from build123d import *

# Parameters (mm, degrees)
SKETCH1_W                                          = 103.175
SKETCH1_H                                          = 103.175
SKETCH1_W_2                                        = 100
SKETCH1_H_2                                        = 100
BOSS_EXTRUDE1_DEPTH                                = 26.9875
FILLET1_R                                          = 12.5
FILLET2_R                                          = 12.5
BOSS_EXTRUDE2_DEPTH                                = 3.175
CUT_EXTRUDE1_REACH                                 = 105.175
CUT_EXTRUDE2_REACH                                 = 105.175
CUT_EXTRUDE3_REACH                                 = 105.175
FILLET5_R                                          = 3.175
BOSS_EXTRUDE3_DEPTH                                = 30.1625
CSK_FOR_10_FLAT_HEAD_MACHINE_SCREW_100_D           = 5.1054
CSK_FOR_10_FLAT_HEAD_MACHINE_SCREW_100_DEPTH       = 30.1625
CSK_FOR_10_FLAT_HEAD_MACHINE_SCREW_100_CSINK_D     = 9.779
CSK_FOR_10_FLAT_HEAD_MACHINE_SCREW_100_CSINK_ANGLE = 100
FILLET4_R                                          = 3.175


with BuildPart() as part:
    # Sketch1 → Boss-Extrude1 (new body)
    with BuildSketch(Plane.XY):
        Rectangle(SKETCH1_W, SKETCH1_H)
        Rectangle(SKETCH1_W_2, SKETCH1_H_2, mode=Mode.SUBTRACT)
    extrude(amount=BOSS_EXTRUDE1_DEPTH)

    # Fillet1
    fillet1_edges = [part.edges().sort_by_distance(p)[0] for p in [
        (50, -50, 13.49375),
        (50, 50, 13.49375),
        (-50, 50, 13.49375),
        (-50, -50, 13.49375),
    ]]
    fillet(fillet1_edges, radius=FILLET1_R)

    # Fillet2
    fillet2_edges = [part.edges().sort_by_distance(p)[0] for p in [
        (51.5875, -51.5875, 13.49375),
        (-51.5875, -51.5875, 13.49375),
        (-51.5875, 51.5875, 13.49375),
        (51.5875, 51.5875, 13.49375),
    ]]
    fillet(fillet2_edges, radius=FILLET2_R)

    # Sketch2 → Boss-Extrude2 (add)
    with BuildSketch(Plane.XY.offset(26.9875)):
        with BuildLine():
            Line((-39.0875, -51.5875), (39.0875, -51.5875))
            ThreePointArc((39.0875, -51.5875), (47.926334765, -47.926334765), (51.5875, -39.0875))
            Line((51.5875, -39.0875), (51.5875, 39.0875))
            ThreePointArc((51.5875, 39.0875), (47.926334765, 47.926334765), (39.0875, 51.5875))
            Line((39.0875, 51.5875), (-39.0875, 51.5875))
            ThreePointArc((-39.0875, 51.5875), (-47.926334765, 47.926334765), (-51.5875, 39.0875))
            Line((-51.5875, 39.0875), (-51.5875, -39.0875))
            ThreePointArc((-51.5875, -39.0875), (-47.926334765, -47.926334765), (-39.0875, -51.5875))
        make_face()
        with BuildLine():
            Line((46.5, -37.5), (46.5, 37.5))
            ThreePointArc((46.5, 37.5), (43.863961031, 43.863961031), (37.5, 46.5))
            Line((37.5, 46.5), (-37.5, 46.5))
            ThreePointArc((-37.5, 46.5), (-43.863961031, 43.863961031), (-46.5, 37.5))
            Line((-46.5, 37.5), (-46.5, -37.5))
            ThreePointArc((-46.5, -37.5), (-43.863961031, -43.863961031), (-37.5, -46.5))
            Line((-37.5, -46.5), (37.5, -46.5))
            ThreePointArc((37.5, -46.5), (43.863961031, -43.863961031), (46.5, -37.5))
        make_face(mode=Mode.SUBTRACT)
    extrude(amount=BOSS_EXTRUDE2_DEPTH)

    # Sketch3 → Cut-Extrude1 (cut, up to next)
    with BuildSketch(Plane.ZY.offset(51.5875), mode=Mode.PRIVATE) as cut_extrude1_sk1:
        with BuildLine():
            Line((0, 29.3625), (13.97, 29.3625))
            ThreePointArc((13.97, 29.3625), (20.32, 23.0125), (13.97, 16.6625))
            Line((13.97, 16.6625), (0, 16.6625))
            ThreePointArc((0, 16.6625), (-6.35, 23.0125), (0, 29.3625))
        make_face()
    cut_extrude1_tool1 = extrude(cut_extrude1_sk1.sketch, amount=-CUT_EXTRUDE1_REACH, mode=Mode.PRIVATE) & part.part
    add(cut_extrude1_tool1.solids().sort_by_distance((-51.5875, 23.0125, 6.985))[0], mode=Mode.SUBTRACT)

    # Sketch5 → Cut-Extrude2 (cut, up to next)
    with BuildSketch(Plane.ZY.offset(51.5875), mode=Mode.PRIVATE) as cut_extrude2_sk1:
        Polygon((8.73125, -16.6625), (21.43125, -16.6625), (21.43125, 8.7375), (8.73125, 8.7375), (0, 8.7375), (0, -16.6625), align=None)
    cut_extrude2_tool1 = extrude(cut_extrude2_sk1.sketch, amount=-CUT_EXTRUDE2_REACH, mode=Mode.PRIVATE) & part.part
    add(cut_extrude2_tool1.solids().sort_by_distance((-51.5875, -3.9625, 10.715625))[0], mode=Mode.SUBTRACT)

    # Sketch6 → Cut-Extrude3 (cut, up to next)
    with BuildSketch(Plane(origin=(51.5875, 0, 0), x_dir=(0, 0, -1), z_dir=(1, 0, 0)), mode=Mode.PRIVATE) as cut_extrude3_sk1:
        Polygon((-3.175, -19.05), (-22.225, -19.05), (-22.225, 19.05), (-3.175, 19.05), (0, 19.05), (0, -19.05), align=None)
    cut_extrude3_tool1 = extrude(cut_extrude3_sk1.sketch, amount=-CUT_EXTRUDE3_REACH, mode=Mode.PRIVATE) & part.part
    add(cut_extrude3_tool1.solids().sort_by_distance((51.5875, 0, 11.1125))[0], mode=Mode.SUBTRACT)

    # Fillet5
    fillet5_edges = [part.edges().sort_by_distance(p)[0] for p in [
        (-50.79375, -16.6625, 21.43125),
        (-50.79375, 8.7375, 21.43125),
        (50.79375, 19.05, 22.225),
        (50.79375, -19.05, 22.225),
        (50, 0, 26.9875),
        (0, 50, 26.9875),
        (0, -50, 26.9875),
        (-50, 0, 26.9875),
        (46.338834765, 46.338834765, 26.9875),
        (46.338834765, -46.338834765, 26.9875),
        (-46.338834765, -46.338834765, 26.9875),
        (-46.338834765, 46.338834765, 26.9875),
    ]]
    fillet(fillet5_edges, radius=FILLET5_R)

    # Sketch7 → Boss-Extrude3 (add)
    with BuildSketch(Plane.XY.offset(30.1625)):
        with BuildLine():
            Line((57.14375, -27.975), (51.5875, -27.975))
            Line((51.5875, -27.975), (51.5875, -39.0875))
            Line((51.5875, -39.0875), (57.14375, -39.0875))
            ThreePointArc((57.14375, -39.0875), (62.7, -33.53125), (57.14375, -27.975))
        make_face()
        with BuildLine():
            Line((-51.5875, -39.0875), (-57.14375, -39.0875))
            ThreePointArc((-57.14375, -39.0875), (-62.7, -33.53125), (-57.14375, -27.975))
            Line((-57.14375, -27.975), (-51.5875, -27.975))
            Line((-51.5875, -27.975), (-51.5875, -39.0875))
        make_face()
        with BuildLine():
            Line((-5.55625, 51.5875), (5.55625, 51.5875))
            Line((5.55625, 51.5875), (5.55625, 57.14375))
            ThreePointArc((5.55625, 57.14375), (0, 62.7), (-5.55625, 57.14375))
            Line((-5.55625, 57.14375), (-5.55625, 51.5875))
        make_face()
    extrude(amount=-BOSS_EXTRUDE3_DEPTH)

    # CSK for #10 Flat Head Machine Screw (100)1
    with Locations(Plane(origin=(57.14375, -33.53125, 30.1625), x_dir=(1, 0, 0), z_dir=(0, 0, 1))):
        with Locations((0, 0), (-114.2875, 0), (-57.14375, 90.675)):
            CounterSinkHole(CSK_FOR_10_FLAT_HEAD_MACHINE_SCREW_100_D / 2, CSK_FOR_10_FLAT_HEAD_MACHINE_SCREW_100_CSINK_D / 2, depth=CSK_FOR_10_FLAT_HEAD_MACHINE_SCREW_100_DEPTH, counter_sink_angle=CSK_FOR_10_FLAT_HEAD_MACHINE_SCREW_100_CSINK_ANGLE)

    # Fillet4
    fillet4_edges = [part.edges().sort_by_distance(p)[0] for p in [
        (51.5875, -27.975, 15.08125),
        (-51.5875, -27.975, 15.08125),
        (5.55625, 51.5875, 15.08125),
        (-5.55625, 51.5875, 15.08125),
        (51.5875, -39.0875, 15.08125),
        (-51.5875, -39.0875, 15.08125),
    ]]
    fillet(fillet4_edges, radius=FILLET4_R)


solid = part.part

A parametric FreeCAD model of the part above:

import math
import FreeCAD as App
import Part
import Sketcher
from FreeCAD import Vector
Q = App.Units.Quantity


def edges_at(feature, points):
    """Names of the edges that pass closest to the given points."""
    edges = feature.Shape.Edges
    near = lambda p: min(range(len(edges)), key=lambda i: edges[i].distToShape(Part.Vertex(*p))[0])
    return sorted({f"Edge{near(p) + 1}" for p in points})

doc = App.newDocument("Part")
body = doc.addObject("PartDesign::Body", "Body")

sketch1 = body.newObject("Sketcher::SketchObject", "Sketch")
sketch1.AttachmentSupport = (doc.getObject("XY_Plane"), [""])
sketch1.MapMode = "FlatFace"
sketch1.addGeometry([
    Part.LineSegment(Vector(-51.5875, 51.5875, 0), Vector(-51.5875, -51.5875, 0)),
    Part.LineSegment(Vector(-51.5875, -51.5875, 0), Vector(51.5875, -51.5875, 0)),
    Part.LineSegment(Vector(51.5875, -51.5875, 0), Vector(51.5875, 51.5875, 0)),
    Part.LineSegment(Vector(51.5875, 51.5875, 0), Vector(-51.5875, 51.5875, 0)),
    Part.LineSegment(Vector(50, -50, 0), Vector(-50, -50, 0)),
    Part.LineSegment(Vector(-50, -50, 0), Vector(-50, 50, 0)),
    Part.LineSegment(Vector(-50, 50, 0), Vector(50, 50, 0)),
    Part.LineSegment(Vector(50, 50, 0), Vector(50, -50, 0)),
], False)
sketch1.addConstraint([
    Sketcher.Constraint("Coincident", 0, 2, 1, 1),
    Sketcher.Constraint("Coincident", 1, 2, 2, 1),
    Sketcher.Constraint("Coincident", 2, 2, 3, 1),
    Sketcher.Constraint("Coincident", 3, 2, 0, 1),
    Sketcher.Constraint("Coincident", 4, 2, 5, 1),
    Sketcher.Constraint("Coincident", 5, 2, 6, 1),
    Sketcher.Constraint("Coincident", 6, 2, 7, 1),
    Sketcher.Constraint("Coincident", 7, 2, 4, 1),
    Sketcher.Constraint("Vertical", 0),
    Sketcher.Constraint("Horizontal", 1),
    Sketcher.Constraint("Vertical", 2),
    Sketcher.Constraint("Horizontal", 3),
    Sketcher.Constraint("Horizontal", 4),
    Sketcher.Constraint("Vertical", 5),
    Sketcher.Constraint("Horizontal", 6),
    Sketcher.Constraint("Vertical", 7),
    Sketcher.Constraint("Symmetric", 0, 2, 2, 2, -1, 1),
    Sketcher.Constraint("Symmetric", 4, 2, 6, 2, -1, 1),
    Sketcher.Constraint("Equal", 3, 0),
    Sketcher.Constraint("Equal", 6, 5),
    Sketcher.Constraint("DistanceX", 0, 2, 4, 2, Q("0.0625 in")),
    Sketcher.Constraint("DistanceX", 1, 1, 1, 2, Q("103.175 mm")),
])
pad1 = body.newObject("PartDesign::Pad", "Pad")
pad1.Profile = sketch1
pad1.Length = Q("1.0625 in")
doc.recompute()

fillet = body.newObject("PartDesign::Fillet", "Fillet")
fillet.Base = (pad1, edges_at(pad1, [
    (50, -50, 13.494),
    (50, 50, 13.494),
    (-50, 50, 13.494),
    (-50, -50, 13.494),
]))
fillet.Radius = 12.5
doc.recompute()

fillet2 = body.newObject("PartDesign::Fillet", "Fillet001")
fillet2.Base = (fillet, edges_at(fillet, [
    (51.587, -51.587, 13.494),
    (-51.587, -51.587, 13.494),
    (-51.587, 51.587, 13.494),
    (51.587, 51.587, 13.494),
]))
fillet2.Radius = 12.5

sketch2 = body.newObject("Sketcher::SketchObject", "Sketch001")
sketch2.AttachmentSupport = (doc.getObject("XY_Plane"), [""])
sketch2.MapMode = "FlatFace"
sketch2.AttachmentOffset = App.Placement(Vector(0, 0, 1.0625 * 25.4), App.Rotation())
sketch2.addGeometry([
    Part.LineSegment(Vector(-39.0875, -51.5875, 0), Vector(39.0875, -51.5875, 0)),
    Part.ArcOfCircle(Part.Circle(Vector(39.0875, -39.0875, 0), Vector(0, 0, 1), 12.5), math.radians(-90), math.radians(0)),
    Part.LineSegment(Vector(51.5875, -39.0875, 0), Vector(51.5875, 39.0875, 0)),
    Part.ArcOfCircle(Part.Circle(Vector(39.0875, 39.0875, 0), Vector(0, 0, 1), 12.5), math.radians(0), math.radians(90)),
    Part.LineSegment(Vector(39.0875, 51.5875, 0), Vector(-39.0875, 51.5875, 0)),
    Part.ArcOfCircle(Part.Circle(Vector(-39.0875, 39.0875, 0), Vector(0, 0, 1), 12.5), math.radians(90), math.radians(180)),
    Part.LineSegment(Vector(-51.5875, 39.0875, 0), Vector(-51.5875, -39.0875, 0)),
    Part.ArcOfCircle(Part.Circle(Vector(-39.0875, -39.0875, 0), Vector(0, 0, 1), 12.5), math.radians(180), math.radians(270)),
    Part.LineSegment(Vector(46.5, 37.5, 0), Vector(46.5, -37.5, 0)),
    Part.ArcOfCircle(Part.Circle(Vector(37.5, -37.5, 0), Vector(0, 0, 1), 9), math.radians(-90), math.radians(0)),
    Part.LineSegment(Vector(37.5, -46.5, 0), Vector(-37.5, -46.5, 0)),
    Part.ArcOfCircle(Part.Circle(Vector(-37.5, -37.5, 0), Vector(0, 0, 1), 9), math.radians(180), math.radians(270)),
    Part.LineSegment(Vector(-46.5, -37.5, 0), Vector(-46.5, 37.5, 0)),
    Part.ArcOfCircle(Part.Circle(Vector(-37.5, 37.5, 0), Vector(0, 0, 1), 9), math.radians(90), math.radians(180)),
    Part.LineSegment(Vector(-37.5, 46.5, 0), Vector(37.5, 46.5, 0)),
    Part.ArcOfCircle(Part.Circle(Vector(37.5, 37.5, 0), Vector(0, 0, 1), 9), math.radians(0), math.radians(90)),
], False)
sketch2.addConstraint([
    Sketcher.Constraint("Tangent", 0, 2, 1, 1),
    Sketcher.Constraint("Tangent", 1, 2, 2, 1),
    Sketcher.Constraint("Tangent", 2, 2, 3, 1),
    Sketcher.Constraint("Tangent", 3, 2, 4, 1),
    Sketcher.Constraint("Tangent", 4, 2, 5, 1),
    Sketcher.Constraint("Tangent", 5, 2, 6, 1),
    Sketcher.Constraint("Tangent", 6, 2, 7, 1),
    Sketcher.Constraint("Tangent", 7, 2, 0, 1),
    Sketcher.Constraint("Tangent", 8, 2, 9, 2),
    Sketcher.Constraint("Tangent", 9, 1, 10, 1),
    Sketcher.Constraint("Tangent", 10, 2, 11, 2),
    Sketcher.Constraint("Tangent", 11, 1, 12, 1),
    Sketcher.Constraint("Tangent", 12, 2, 13, 2),
    Sketcher.Constraint("Tangent", 13, 1, 14, 1),
    Sketcher.Constraint("Tangent", 14, 2, 15, 2),
    Sketcher.Constraint("Tangent", 15, 1, 8, 1),
    Sketcher.Constraint("Horizontal", 0),
    Sketcher.Constraint("Vertical", 2),
    Sketcher.Constraint("Horizontal", 4),
    Sketcher.Constraint("Vertical", 6),
    Sketcher.Constraint("Vertical", 8),
    Sketcher.Constraint("Horizontal", 10),
    Sketcher.Constraint("Vertical", 12),
    Sketcher.Constraint("Horizontal", 14),
    Sketcher.Constraint("Equal", 1, 3),
    Sketcher.Constraint("Equal", 3, 5),
    Sketcher.Constraint("Equal", 5, 7),
    Sketcher.Constraint("Equal", 9, 11),
    Sketcher.Constraint("Equal", 11, 13),
    Sketcher.Constraint("Equal", 13, 15),
    Sketcher.Constraint("Symmetric", 1, 3, 5, 3, -1, 1),
    Sketcher.Constraint("Symmetric", 9, 3, 13, 3, -1, 1),
    Sketcher.Constraint("Equal", 4, 2),
    Sketcher.Constraint("Equal", 14, 8),
    Sketcher.Constraint("Radius", 1, Q("12.5 mm")),
    Sketcher.Constraint("Radius", 9, Q("9 mm")),
    Sketcher.Constraint("DistanceX", 9, 3, 1, 3, Q("0.0625 in")),
    Sketcher.Constraint("DistanceX", 0, 1, 0, 2, Q("78.175 mm")),
])
pad2 = body.newObject("PartDesign::Pad", "Pad001")
pad2.Profile = sketch2
pad2.Length = Q("0.125 in")

sketch3 = body.newObject("Sketcher::SketchObject", "Sketch002")
sketch3.AttachmentSupport = (doc.getObject("YZ_Plane"), [""])
sketch3.MapMode = "FlatFace"
sketch3.AttachmentOffset = App.Placement(Vector(0, 0, -51.5875), App.Rotation())
sketch3.addGeometry([
    Part.LineSegment(Vector(29.3625, 13.97, 0), Vector(29.3625, 0, 0)),
    Part.ArcOfCircle(Part.Circle(Vector(23.0125, 0, 0), Vector(0, 0, 1), 6.35), math.radians(180), math.radians(360)),
    Part.LineSegment(Vector(16.6625, 0, 0), Vector(16.6625, 13.97, 0)),
    Part.ArcOfCircle(Part.Circle(Vector(23.0125, 13.97, 0), Vector(0, 0, 1), 6.35), math.radians(0), math.radians(180)),
], False)
sketch3.addConstraint([
    Sketcher.Constraint("Tangent", 0, 2, 1, 2),
    Sketcher.Constraint("Tangent", 1, 1, 2, 1),
    Sketcher.Constraint("Tangent", 2, 2, 3, 2),
    Sketcher.Constraint("Tangent", 3, 1, 0, 1),
    Sketcher.Constraint("Vertical", 0),
    Sketcher.Constraint("Vertical", 2),
    Sketcher.Constraint("PointOnObject", 1, 3, -1),
    Sketcher.Constraint("Radius", 1, Q("0.25 in")),
    Sketcher.Constraint("DistanceY", 0, 2, 0, 1, Q("0.55 in")),
    Sketcher.Constraint("DistanceX", -1, 1, 1, 3, Q("23.0125 mm")),
])
pocket1 = body.newObject("PartDesign::Pocket", "Pocket")
pocket1.Profile = sketch3
pocket1.Type = "UpToFirst"
pocket1.Reversed = True

sketch4 = body.newObject("Sketcher::SketchObject", "Sketch003")
sketch4.AttachmentSupport = (doc.getObject("YZ_Plane"), [""])
sketch4.MapMode = "FlatFace"
sketch4.AttachmentOffset = App.Placement(Vector(0, 0, -51.5875), App.Rotation())
sketch4.addGeometry([
    Part.LineSegment(Vector(-16.6625, 21.43125, 0), Vector(8.7375, 21.43125, 0)),
    Part.LineSegment(Vector(8.7375, 21.43125, 0), Vector(8.7375, 0, 0)),
    Part.LineSegment(Vector(8.7375, 0, 0), Vector(-16.6625, 0, 0)),
    Part.LineSegment(Vector(-16.6625, 0, 0), Vector(-16.6625, 21.43125, 0)),
], False)
sketch4.addConstraint([
    Sketcher.Constraint("Coincident", 0, 2, 1, 1),
    Sketcher.Constraint("Coincident", 1, 2, 2, 1),
    Sketcher.Constraint("Coincident", 2, 2, 3, 1),
    Sketcher.Constraint("Coincident", 3, 2, 0, 1),
    Sketcher.Constraint("Horizontal", 0),
    Sketcher.Constraint("Vertical", 1),
    Sketcher.Constraint("Horizontal", 2),
    Sketcher.Constraint("Vertical", 3),
    Sketcher.Constraint("PointOnObject", 1, 2, -1),
    Sketcher.Constraint("DistanceX", 0, 1, 0, 2, Q("1 in")),
    Sketcher.Constraint("DistanceY", 1, 2, 1, 1, Q("0.84375 in")),
    Sketcher.Constraint("DistanceX", -1, 1, 0, 2, Q("8.7375 mm")),
])
pocket2 = body.newObject("PartDesign::Pocket", "Pocket001")
pocket2.Profile = sketch4
pocket2.Type = "UpToFirst"
pocket2.Reversed = True

sketch5 = body.newObject("Sketcher::SketchObject", "Sketch004")
sketch5.AttachmentSupport = (doc.getObject("YZ_Plane"), [""])
sketch5.MapMode = "FlatFace"
sketch5.AttachmentOffset = App.Placement(Vector(0, 0, 51.5875), App.Rotation())
sketch5.addGeometry([
    Part.LineSegment(Vector(-19.05, 22.225, 0), Vector(-19.05, 0, 0)),
    Part.LineSegment(Vector(-19.05, 0, 0), Vector(19.05, 0, 0)),
    Part.LineSegment(Vector(19.05, 0, 0), Vector(19.05, 22.225, 0)),
    Part.LineSegment(Vector(19.05, 22.225, 0), Vector(-19.05, 22.225, 0)),
], False)
sketch5.addConstraint([
    Sketcher.Constraint("Coincident", 0, 2, 1, 1),
    Sketcher.Constraint("Coincident", 1, 2, 2, 1),
    Sketcher.Constraint("Coincident", 2, 2, 3, 1),
    Sketcher.Constraint("Coincident", 3, 2, 0, 1),
    Sketcher.Constraint("Vertical", 0),
    Sketcher.Constraint("Horizontal", 1),
    Sketcher.Constraint("Vertical", 2),
    Sketcher.Constraint("Horizontal", 3),
    Sketcher.Constraint("Symmetric", 0, 2, 1, 2, -1, 1),
    Sketcher.Constraint("DistanceX", 1, 1, 1, 2, Q("1.5 in")),
    Sketcher.Constraint("DistanceY", 0, 2, 0, 1, Q("0.875 in")),
])
pocket3 = body.newObject("PartDesign::Pocket", "Pocket002")
pocket3.Profile = sketch5
pocket3.Type = "UpToFirst"
doc.recompute()

fillet3 = body.newObject("PartDesign::Fillet", "Fillet002")
fillet3.Base = (pocket3, edges_at(pocket3, [
    (-50.794, -16.663, 21.431),
    (-50.794, 8.738, 21.431),
    (50.794, 19.05, 22.225),
    (50.794, -19.05, 22.225),
    (50, 0, 26.988),
    (0, 50, 26.988),
    (0, -50, 26.988),
    (-50, 0, 26.988),
    (46.339, 46.339, 26.988),
    (46.339, -46.339, 26.988),
    (-46.339, -46.339, 26.988),
    (-46.339, 46.339, 26.988),
]))
fillet3.Radius = Q("0.125 in")

sketch6 = body.newObject("Sketcher::SketchObject", "Sketch005")
sketch6.AttachmentSupport = (doc.getObject("XY_Plane"), [""])
sketch6.MapMode = "FlatFace"
sketch6.AttachmentOffset = App.Placement(Vector(0, 0, 1.1875 * 25.4), App.Rotation())
sketch6.addGeometry([
    Part.LineSegment(Vector(57.14375, -27.975, 0), Vector(51.5875, -27.975, 0)),
    Part.LineSegment(Vector(51.5875, -27.975, 0), Vector(51.5875, -39.0875, 0)),
    Part.LineSegment(Vector(51.5875, -39.0875, 0), Vector(57.14375, -39.0875, 0)),
    Part.ArcOfCircle(Part.Circle(Vector(57.14375, -33.53125, 0), Vector(0, 0, 1), 5.55625), math.radians(-90), math.radians(90)),
    Part.LineSegment(Vector(-57.14375, -39.0875, 0), Vector(-51.5875, -39.0875, 0)),
    Part.LineSegment(Vector(-51.5875, -39.0875, 0), Vector(-51.5875, -27.975, 0)),
    Part.LineSegment(Vector(-51.5875, -27.975, 0), Vector(-57.14375, -27.975, 0)),
    Part.ArcOfCircle(Part.Circle(Vector(-57.14375, -33.53125, 0), Vector(0, 0, 1), 5.55625), math.radians(90), math.radians(270)),
    Part.LineSegment(Vector(-5.55625, 51.5875, 0), Vector(5.55625, 51.5875, 0)),
    Part.LineSegment(Vector(5.55625, 51.5875, 0), Vector(5.55625, 57.14375, 0)),
    Part.ArcOfCircle(Part.Circle(Vector(0, 57.14375, 0), Vector(0, 0, 1), 5.55625), math.radians(0), math.radians(180)),
    Part.LineSegment(Vector(-5.55625, 57.14375, 0), Vector(-5.55625, 51.5875, 0)),
], False)
sketch6.addConstraint([
    Sketcher.Constraint("Coincident", 0, 2, 1, 1),
    Sketcher.Constraint("Coincident", 1, 2, 2, 1),
    Sketcher.Constraint("Tangent", 2, 2, 3, 1),
    Sketcher.Constraint("Tangent", 3, 2, 0, 1),
    Sketcher.Constraint("Coincident", 4, 2, 5, 1),
    Sketcher.Constraint("Coincident", 5, 2, 6, 1),
    Sketcher.Constraint("Tangent", 6, 2, 7, 1),
    Sketcher.Constraint("Tangent", 7, 2, 4, 1),
    Sketcher.Constraint("Coincident", 8, 2, 9, 1),
    Sketcher.Constraint("Tangent", 9, 2, 10, 1),
    Sketcher.Constraint("Tangent", 10, 2, 11, 1),
    Sketcher.Constraint("Coincident", 11, 2, 8, 1),
    Sketcher.Constraint("Horizontal", 0),
    Sketcher.Constraint("Vertical", 1),
    Sketcher.Constraint("Horizontal", 2),
    Sketcher.Constraint("Horizontal", 4),
    Sketcher.Constraint("Vertical", 5),
    Sketcher.Constraint("Horizontal", 6),
    Sketcher.Constraint("Horizontal", 8),
    Sketcher.Constraint("Vertical", 9),
    Sketcher.Constraint("Vertical", 11),
    Sketcher.Constraint("Equal", 3, 7),
    Sketcher.Constraint("Equal", 7, 10),
    Sketcher.Constraint("Symmetric", 3, 3, 7, 3, -2),
    Sketcher.Constraint("PointOnObject", 10, 3, -2),
    Sketcher.Constraint("Equal", 2, 4),
    Sketcher.Constraint("Equal", 6, 9),
    Sketcher.Constraint("Radius", 3, Q("0.21875 in")),
    Sketcher.Constraint("DistanceX", 0, 2, 0, 1, Q("0.21875 in")),
    Sketcher.Constraint("DistanceX", -1, 1, 0, 2, Q("51.5875 mm")),
    Sketcher.Constraint("DistanceY", 0, 2, -1, 1, Q("27.975 mm")),
    Sketcher.Constraint("DistanceY", -1, 1, 8, 2, Q("51.5875 mm")),
])
pad3 = body.newObject("PartDesign::Pad", "Pad002")
pad3.Profile = sketch6
pad3.Length = Q("1.1875 in")
pad3.Reversed = True

sketch7 = body.newObject("Sketcher::SketchObject", "Sketch006")
sketch7.AttachmentSupport = (doc.getObject("XY_Plane"), [""])
sketch7.MapMode = "FlatFace"
sketch7.AttachmentOffset = App.Placement(Vector(0, 0, 1.1875 * 25.4), App.Rotation())
sketch7.addGeometry([
    Part.Circle(Vector(57.14375, -33.53125, 0), Vector(0, 0, 1), 2.5527),
    Part.Circle(Vector(-57.14375, -33.53125, 0), Vector(0, 0, 1), 2.5527),
    Part.Circle(Vector(0, 57.14375, 0), Vector(0, 0, 1), 2.5527),
], False)
sketch7.addConstraint([
    Sketcher.Constraint("Equal", 0, 1),
    Sketcher.Constraint("Equal", 1, 2),
    Sketcher.Constraint("Symmetric", 0, 3, 1, 3, -2),
    Sketcher.Constraint("PointOnObject", 2, 3, -2),
    Sketcher.Constraint("Diameter", 0, Q("0.201 in")),
    Sketcher.Constraint("DistanceX", 1, 3, 0, 3, Q("114.2875 mm")),
    Sketcher.Constraint("DistanceY", 0, 3, 2, 3, Q("90.675 mm")),
    Sketcher.Constraint("DistanceY", 0, 3, -1, 1, Q("33.53125 mm")),
])
doc.recompute()
hole = body.newObject("PartDesign::Hole", "Hole")
hole.Profile = sketch7
hole.ThreadType = "None"
hole.Diameter = Q("0.201 in")
hole.DepthType = "Dimension"
hole.Depth = Q("1.1875 in")
hole.DrillPoint = "Flat"
hole.HoleCutType = "Countersink"
hole.HoleCutDiameter = Q("0.385 in")
hole.HoleCutCountersinkAngle = 100
doc.recompute()

fillet4 = body.newObject("PartDesign::Fillet", "Fillet003")
fillet4.Base = (hole, edges_at(hole, [
    (51.587, -27.975, 15.081),
    (-51.587, -27.975, 15.081),
    (5.556, 51.587, 15.081),
    (-5.556, 51.587, 15.081),
    (51.587, -39.087, 13.494),
    (-51.587, -39.087, 13.494),
]))
fillet4.Radius = Q("0.125 in")

doc.recompute()
